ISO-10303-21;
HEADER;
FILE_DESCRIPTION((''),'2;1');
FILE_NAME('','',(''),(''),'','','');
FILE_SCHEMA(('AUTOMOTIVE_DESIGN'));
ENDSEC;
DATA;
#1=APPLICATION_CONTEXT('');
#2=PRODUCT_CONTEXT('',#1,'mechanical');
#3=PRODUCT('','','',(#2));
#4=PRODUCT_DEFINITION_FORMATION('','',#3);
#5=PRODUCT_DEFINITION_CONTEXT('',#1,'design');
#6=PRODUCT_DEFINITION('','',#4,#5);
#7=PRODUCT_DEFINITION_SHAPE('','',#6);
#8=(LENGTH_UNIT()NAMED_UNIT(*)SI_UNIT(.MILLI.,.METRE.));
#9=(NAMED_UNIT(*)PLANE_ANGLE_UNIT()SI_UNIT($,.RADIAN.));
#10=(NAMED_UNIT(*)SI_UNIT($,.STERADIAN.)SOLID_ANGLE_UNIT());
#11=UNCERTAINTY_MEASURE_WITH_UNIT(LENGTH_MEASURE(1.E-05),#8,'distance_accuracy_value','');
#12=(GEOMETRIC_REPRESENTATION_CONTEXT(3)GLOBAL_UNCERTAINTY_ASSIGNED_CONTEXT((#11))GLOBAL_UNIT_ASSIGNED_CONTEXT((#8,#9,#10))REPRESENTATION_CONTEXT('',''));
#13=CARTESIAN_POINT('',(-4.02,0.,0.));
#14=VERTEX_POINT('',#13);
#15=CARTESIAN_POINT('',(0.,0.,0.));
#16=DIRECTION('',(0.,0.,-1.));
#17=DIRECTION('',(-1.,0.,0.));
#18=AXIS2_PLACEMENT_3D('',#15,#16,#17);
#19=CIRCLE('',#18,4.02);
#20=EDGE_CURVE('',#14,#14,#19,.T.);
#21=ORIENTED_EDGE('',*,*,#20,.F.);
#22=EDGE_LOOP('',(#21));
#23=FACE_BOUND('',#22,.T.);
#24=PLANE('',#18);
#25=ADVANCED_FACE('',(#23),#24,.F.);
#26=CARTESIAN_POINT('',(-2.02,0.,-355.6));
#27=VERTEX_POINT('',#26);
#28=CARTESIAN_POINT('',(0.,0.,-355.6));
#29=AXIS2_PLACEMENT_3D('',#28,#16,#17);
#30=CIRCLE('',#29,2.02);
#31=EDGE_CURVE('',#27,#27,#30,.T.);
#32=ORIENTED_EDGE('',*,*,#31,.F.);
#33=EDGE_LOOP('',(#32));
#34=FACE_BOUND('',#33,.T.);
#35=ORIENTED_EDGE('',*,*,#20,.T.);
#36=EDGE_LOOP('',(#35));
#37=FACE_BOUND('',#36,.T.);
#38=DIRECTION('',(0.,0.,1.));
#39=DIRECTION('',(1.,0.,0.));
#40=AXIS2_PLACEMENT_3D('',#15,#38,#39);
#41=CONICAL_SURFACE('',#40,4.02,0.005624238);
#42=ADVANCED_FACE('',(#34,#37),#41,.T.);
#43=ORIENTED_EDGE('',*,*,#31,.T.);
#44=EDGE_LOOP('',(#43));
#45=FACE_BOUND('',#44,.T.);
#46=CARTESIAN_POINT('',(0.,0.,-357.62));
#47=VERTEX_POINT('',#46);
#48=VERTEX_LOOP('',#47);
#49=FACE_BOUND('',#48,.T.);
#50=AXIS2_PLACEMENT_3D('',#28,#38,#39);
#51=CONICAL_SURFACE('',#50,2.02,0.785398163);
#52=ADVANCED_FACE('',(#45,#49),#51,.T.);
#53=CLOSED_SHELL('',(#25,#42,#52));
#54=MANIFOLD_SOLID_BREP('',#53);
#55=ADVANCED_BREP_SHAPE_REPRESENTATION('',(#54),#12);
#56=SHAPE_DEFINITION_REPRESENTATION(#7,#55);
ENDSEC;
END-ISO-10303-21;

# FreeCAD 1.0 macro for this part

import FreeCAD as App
import Part
import Sketcher
Q = App.Units.Quantity


def add_polygon(sketch, points):
    """Adds a closed chain of lines whose ends are joined by coincident constraints."""
    first, n = sketch.GeometryCount, len(points)
    for a, b in zip(points, points[1:] + points[:1]):
        sketch.addGeometry(Part.LineSegment(App.Vector(*a, 0), App.Vector(*b, 0)), False)
    for i in range(n):
        sketch.addConstraint(Sketcher.Constraint("Coincident", first + i, 2, first + (i + 1) % n, 1))

doc = App.newDocument("Part")
body = doc.addObject("PartDesign::Body", "Body")

sketch1 = body.newObject("Sketcher::SketchObject", "Sketch")
sketch1.AttachmentSupport = (doc.getObject("XZ_Plane"), [""])
sketch1.MapMode = "FlatFace"
add_polygon(sketch1, [(0, 0), (4, 0), (2, -355.6), (0, -357.6)])
sketch1.addConstraint(Sketcher.Constraint("Horizontal", 0))
sketch1.addConstraint(Sketcher.Constraint("Vertical", 3))
sketch1.addConstraint(Sketcher.Constraint("Coincident", 3, 2, -1, 1))
sketch1.addConstraint(Sketcher.Constraint("Angle", 2, Q("-135 deg")))
sketch1.addConstraint(Sketcher.Constraint("DistanceX", 1, 2, 0, 2, Q("2 mm")))
sketch1.addConstraint(Sketcher.Constraint("DistanceX", 0, 1, 0, 2, Q("4.02 mm")))
sketch1.addConstraint(Sketcher.Constraint("DistanceY", 3, 1, 3, 2, Q("357.62 mm")))
revolution = body.newObject("PartDesign::Revolution", "Revolution")
revolution.Profile = sketch1
revolution.ReferenceAxis = (sketch1, ["V_Axis"])
revolution.Angle = 360

doc.recompute()
